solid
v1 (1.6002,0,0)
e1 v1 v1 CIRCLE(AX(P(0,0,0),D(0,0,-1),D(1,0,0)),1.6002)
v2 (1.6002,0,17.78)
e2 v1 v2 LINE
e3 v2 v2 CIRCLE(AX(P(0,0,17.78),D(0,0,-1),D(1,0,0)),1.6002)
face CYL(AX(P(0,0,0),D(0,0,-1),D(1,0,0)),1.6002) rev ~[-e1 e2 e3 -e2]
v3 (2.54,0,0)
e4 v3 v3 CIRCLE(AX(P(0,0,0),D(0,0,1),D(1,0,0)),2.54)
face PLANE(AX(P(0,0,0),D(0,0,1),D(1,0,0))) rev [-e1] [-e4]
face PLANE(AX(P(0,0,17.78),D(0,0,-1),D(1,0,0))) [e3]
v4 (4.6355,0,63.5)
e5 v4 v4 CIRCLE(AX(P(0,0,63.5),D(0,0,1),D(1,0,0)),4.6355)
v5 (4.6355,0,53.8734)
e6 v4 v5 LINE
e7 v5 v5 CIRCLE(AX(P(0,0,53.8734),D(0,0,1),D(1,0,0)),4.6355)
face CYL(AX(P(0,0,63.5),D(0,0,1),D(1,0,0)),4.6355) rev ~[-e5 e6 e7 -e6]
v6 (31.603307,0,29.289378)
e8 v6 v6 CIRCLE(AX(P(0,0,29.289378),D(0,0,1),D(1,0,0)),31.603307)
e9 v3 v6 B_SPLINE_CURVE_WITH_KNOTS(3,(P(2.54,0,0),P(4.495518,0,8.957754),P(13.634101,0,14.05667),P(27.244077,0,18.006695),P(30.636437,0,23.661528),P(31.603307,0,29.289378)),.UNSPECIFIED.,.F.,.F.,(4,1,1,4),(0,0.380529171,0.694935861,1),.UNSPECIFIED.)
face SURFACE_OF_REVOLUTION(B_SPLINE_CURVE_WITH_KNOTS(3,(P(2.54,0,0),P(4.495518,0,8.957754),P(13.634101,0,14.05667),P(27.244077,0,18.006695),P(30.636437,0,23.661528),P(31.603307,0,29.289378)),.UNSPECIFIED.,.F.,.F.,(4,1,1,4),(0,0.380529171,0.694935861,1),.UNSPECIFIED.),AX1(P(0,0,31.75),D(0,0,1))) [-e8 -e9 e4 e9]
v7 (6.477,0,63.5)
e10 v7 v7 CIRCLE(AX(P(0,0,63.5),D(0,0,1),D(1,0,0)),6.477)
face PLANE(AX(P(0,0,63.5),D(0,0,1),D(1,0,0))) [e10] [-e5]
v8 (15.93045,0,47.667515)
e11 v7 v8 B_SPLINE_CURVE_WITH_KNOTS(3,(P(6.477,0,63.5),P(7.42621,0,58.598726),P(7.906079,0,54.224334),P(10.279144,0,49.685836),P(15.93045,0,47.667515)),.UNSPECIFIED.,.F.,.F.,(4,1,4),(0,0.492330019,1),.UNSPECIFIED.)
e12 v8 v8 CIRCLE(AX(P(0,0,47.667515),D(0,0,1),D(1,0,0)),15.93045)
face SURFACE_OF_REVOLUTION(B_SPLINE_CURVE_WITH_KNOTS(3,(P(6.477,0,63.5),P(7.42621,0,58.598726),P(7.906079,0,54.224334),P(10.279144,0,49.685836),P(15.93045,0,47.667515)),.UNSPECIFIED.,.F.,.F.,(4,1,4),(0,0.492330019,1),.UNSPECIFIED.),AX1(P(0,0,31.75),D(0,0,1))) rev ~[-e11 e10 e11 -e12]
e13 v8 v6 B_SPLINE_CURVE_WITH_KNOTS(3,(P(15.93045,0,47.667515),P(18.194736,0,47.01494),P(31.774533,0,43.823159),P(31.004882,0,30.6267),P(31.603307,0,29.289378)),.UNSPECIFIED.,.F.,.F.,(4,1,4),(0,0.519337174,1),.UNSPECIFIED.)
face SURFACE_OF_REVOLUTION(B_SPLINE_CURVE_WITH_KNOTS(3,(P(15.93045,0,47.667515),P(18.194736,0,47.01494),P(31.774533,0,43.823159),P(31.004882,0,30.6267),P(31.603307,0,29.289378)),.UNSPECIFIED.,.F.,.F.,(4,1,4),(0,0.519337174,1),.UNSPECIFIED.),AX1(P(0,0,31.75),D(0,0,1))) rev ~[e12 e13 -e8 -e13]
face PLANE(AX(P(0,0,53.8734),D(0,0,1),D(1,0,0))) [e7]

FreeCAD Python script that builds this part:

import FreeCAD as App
import Part
import Sketcher

V = App.Vector
Q = App.Units.Quantity

doc = App.newDocument("Part")
params = doc.addObject("Spreadsheet::Sheet", "Params")
for row, (alias, value) in enumerate([
    ("revolution_angle", "360 deg"),
    ("sketch2_diameter", "0.365 in"),
    ("pocket1_length", "0.379 in"),
    ("sketch3_diameter", "0.126 in"),
    ("pocket2_length", "0.7 in"),
], start=1):
    params.set(f"A{row}", alias)
    params.set(f"B{row}", "=" + value)
    params.setAlias(f"B{row}", alias)

body = doc.addObject("PartDesign::Body", "Body")

# Sketch on XZ plane
sketch1 = body.newObject("Sketcher::SketchObject", "Sketch")
sketch1.AttachmentSupport = (doc.getObject("XZ_Plane"), [""])
sketch1.MapMode = "FlatFace"
sketch1.addGeometry(Part.LineSegment(V(0, 63.5, 0), V(0, 0, 0)), False)
sketch1.addGeometry(Part.LineSegment(V(0, 0, 0), V(2.54, 0, 0)), False)
sketch1.addGeometry(Part.BSplineCurve([V(2.54, 0, 0), V(4.495518, 8.957754, 0), V(13.634101, 14.05667, 0), V(27.244077, 18.006695, 0), V(30.636437, 23.661528, 0), V(31.603307, 29.289378, 0)], [4, 1, 1, 4], [0, 0.380529171, 0.694935861, 1], False, 3, [1, 1, 1, 1, 1, 1], False), False)
sketch1.addGeometry(Part.BSplineCurve([V(15.93045, 47.667515, 0), V(18.194736, 47.01494, 0), V(31.774533, 43.823159, 0), V(31.004882, 30.6267, 0), V(31.603307, 29.289378, 0)], [4, 1, 4], [0, 0.519337174, 1], False, 3, [1, 1, 1, 1, 1], False), False)
sketch1.addGeometry(Part.BSplineCurve([V(6.477, 63.5, 0), V(7.42621, 58.598726, 0), V(7.906079, 54.224334, 0), V(10.279144, 49.685836, 0), V(15.93045, 47.667515, 0)], [4, 1, 4], [0, 0.492330019, 1], False, 3, [1, 1, 1, 1, 1], False), False)
sketch1.addGeometry(Part.LineSegment(V(6.477, 63.5, 0), V(0, 63.5, 0)), False)
sketch1.addConstraint(Sketcher.Constraint("Block", 2))
sketch1.addConstraint(Sketcher.Constraint("Block", 3))
sketch1.addConstraint(Sketcher.Constraint("Block", 4))
sketch1.addConstraint(Sketcher.Constraint("Coincident", 0, 2, 1, 1))
sketch1.addConstraint(Sketcher.Constraint("Coincident", 1, 2, 2, 1))
sketch1.addConstraint(Sketcher.Constraint("Coincident", 4, 1, 5, 1))
sketch1.addConstraint(Sketcher.Constraint("Coincident", 5, 2, 0, 1))
sketch1.addConstraint(Sketcher.Constraint("Vertical", 0))
sketch1.addConstraint(Sketcher.Constraint("Horizontal", 1))
sketch1.addConstraint(Sketcher.Constraint("Horizontal", 5))
sketch1.addConstraint(Sketcher.Constraint("PointOnObject", 5, 2, -2))
revolution = body.newObject("PartDesign::Revolution", "Revolution")
revolution.Profile = sketch1
revolution.ReferenceAxis = (sketch1, ["V_Axis"])
revolution.setExpression("Angle", "Params.revolution_angle")

# Sketch on XY plane
sketch2 = body.newObject("Sketcher::SketchObject", "Sketch001")
sketch2.AttachmentSupport = (doc.getObject("XY_Plane"), [""])
sketch2.MapMode = "FlatFace"
sketch2.AttachmentOffset = App.Placement(V(0, 0, 2.5 * 25.4), App.Rotation())
sketch2.addGeometry(Part.Circle(V(0, 0, 0), V(0, 0, 1), 4.6), False)
sketch2.addConstraint(Sketcher.Constraint("Coincident", 0, 3, -1, 1))
sketch2.addConstraint(Sketcher.Constraint("Diameter", 0, Q("0.365 in")))
sketch2.setExpression("Constraints[1]", "Params.sketch2_diameter")
pocket1 = body.newObject("PartDesign::Pocket", "Pocket")
pocket1.Profile = sketch2
pocket1.setExpression("Length", "Params.pocket1_length")

# Sketch on XY plane
sketch3 = body.newObject("Sketcher::SketchObject", "Sketch002")
sketch3.AttachmentSupport = (doc.getObject("XY_Plane"), [""])
sketch3.MapMode = "FlatFace"
sketch3.addGeometry(Part.Circle(V(0, 0, 0), V(0, 0, 1), 1.6), False)
sketch3.addConstraint(Sketcher.Constraint("Coincident", 0, 3, -1, 1))
sketch3.addConstraint(Sketcher.Constraint("Diameter", 0, Q("0.126 in")))
sketch3.setExpression("Constraints[1]", "Params.sketch3_diameter")
pocket2 = body.newObject("PartDesign::Pocket", "Pocket001")
pocket2.Profile = sketch3
pocket2.setExpression("Length", "Params.pocket2_length")
pocket2.Reversed = True

doc.recompute()
